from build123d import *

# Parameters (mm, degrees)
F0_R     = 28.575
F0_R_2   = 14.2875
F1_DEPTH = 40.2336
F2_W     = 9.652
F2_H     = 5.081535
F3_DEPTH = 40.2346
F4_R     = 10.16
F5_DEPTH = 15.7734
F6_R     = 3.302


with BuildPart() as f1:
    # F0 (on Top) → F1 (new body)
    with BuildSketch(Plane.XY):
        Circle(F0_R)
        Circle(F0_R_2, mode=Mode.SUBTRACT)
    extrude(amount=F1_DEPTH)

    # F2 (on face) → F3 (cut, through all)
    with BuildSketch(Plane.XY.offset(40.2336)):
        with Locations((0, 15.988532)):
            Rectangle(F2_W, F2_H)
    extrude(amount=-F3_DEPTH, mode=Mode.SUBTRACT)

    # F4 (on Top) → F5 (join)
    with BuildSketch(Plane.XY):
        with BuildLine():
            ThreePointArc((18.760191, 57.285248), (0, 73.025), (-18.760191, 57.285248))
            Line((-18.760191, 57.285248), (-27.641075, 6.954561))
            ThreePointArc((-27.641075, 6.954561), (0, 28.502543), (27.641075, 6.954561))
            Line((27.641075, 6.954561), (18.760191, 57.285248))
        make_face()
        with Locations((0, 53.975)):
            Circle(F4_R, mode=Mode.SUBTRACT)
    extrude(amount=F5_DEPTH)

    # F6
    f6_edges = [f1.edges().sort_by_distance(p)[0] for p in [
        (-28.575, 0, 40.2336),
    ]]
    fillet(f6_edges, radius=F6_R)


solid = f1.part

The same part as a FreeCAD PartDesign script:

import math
import FreeCAD as App
import Part
import Sketcher

V = App.Vector
Q = App.Units.Quantity


def edges_at(feature, points):
    """Names of the edges that pass closest to the given points."""
    edges = feature.Shape.Edges
    near = lambda p: min(range(len(edges)), key=lambda i: edges[i].distToShape(Part.Vertex(*p))[0])
    return sorted({f"Edge{near(p) + 1}" for p in points})

doc = App.newDocument("Part")
body = doc.addObject("PartDesign::Body", "Body")

# Sketch on XY plane
sketch1 = body.newObject("Sketcher::SketchObject", "Sketch")
sketch1.AttachmentSupport = (doc.getObject("XY_Plane"), [""])
sketch1.MapMode = "FlatFace"
sketch1.addGeometry([
    Part.Circle(V(0, 0, 0), V(0, 0, 1), 29),
    Part.Circle(V(0, 0, 0), V(0, 0, 1), 14),
], False)
sketch1.addConstraint([
    Sketcher.Constraint("Coincident", 0, 3, -1, 1),
    Sketcher.Constraint("Coincident", 1, 3, -1, 1),
    Sketcher.Constraint("Diameter", 0, Q("2.25 in")),
    Sketcher.Constraint("Diameter", 1, Q("1.125 in")),
])
pad1 = body.newObject("PartDesign::Pad", "Pad")
pad1.Profile = sketch1
pad1.Length = Q("1.584 in")

# Sketch on XY plane
sketch2 = body.newObject("Sketcher::SketchObject", "Sketch001")
sketch2.AttachmentSupport = (doc.getObject("XY_Plane"), [""])
sketch2.MapMode = "FlatFace"
sketch2.AttachmentOffset = App.Placement(V(0, 0, 1.584 * 25.4), App.Rotation())
sketch2.addGeometry([
    Part.LineSegment(V(-5, 19, 0), V(-5, 13, 0)),
    Part.LineSegment(V(-5, 13, 0), V(5, 13, 0)),
    Part.LineSegment(V(5, 13, 0), V(5, 19, 0)),
    Part.LineSegment(V(5, 19, 0), V(-5, 19, 0)),
], False)
sketch2.addConstraint([
    Sketcher.Constraint("Coincident", 0, 2, 1, 1),
    Sketcher.Constraint("Coincident", 1, 2, 2, 1),
    Sketcher.Constraint("Coincident", 2, 2, 3, 1),
    Sketcher.Constraint("Coincident", 3, 2, 0, 1),
    Sketcher.Constraint("Vertical", 0),
    Sketcher.Constraint("Horizontal", 1),
    Sketcher.Constraint("Vertical", 2),
    Sketcher.Constraint("Horizontal", 3),
    Sketcher.Constraint("DistanceX", 1, 1, 1, 2, Q("0.38 in")),
    Sketcher.Constraint("DistanceX", 0, 2, -1, 1, Q("0.19 in")),
    Sketcher.Constraint("DistanceY", -1, 1, 2, 2, Q("0.7295 in")),
    Sketcher.Constraint("DistanceY", 0, 2, 0, 1, 5.081535),
])
pocket1 = body.newObject("PartDesign::Pocket", "Pocket")
pocket1.Profile = sketch2
pocket1.Type = "ThroughAll"

# Sketch on XY plane
sketch3 = body.newObject("Sketcher::SketchObject", "Sketch002")
sketch3.AttachmentSupport = (doc.getObject("XY_Plane"), [""])
sketch3.MapMode = "FlatFace"
sketch3.addGeometry([
    Part.ArcOfCircle(Part.Circle(V(0, 54, 0), V(0, 0, 1), 19), math.radians(10), math.radians(170)),  # 0
    Part.LineSegment(V(-19, 57, 0), V(-28, 7, 0)),  # 1
    Part.ArcOfCircle(Part.Circle(V(0, 0, 0), V(0, 0, 1), 29), math.radians(14), math.radians(166)),  # 2
    Part.LineSegment(V(28, 7, 0), V(19, 57, 0)),  # 3
    Part.Circle(V(0, 54, 0), V(0, 0, 1), 10),  # 4
], False)
sketch3.addConstraint([
    Sketcher.Constraint("Tangent", 0, 2, 1, 1),
    Sketcher.Constraint("Coincident", 1, 2, 2, 2),
    Sketcher.Constraint("Coincident", 2, 1, 3, 1),
    Sketcher.Constraint("Tangent", 3, 2, 0, 1),
    Sketcher.Constraint("Coincident", 2, 3, -1, 1),
    Sketcher.Constraint("Coincident", 4, 3, 0, 3),
    Sketcher.Constraint("PointOnObject", 0, 3, -2),
    Sketcher.Constraint("Horizontal", 1, 2, 2, 1),
    Sketcher.Constraint("Diameter", 4, Q("0.8 in")),
    Sketcher.Constraint("Radius", 0, Q("0.75 in")),
    Sketcher.Constraint("DistanceY", -1, 1, 0, 3, Q("2.125 in")),
    Sketcher.Constraint("Radius", 2, 28.502543),
    Sketcher.Constraint("Distance", 1, 51.1082),
])
pad2 = body.newObject("PartDesign::Pad", "Pad001")
pad2.Profile = sketch3
pad2.Length = Q("0.621 in")
doc.recompute()

fillet = body.newObject("PartDesign::Fillet", "Fillet")
fillet.Base = (pad2, edges_at(pad2, [(-28.575, 0, 40.234)]))
fillet.Radius = Q("0.13 in")

doc.recompute()
